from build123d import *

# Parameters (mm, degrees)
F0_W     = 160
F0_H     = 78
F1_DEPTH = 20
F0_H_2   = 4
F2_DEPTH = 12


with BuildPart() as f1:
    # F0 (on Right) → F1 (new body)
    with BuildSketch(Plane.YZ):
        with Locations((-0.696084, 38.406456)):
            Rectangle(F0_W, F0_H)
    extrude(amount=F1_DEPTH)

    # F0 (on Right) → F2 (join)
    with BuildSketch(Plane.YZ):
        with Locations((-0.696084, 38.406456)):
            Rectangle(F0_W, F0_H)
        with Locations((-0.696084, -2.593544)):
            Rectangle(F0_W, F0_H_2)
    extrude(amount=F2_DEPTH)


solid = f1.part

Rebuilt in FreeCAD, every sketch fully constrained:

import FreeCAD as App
import Part
import Sketcher
Q = App.Units.Quantity

doc = App.newDocument("Part")
body = doc.addObject("PartDesign::Body", "Body")

sketch1 = doc.addObject("Sketcher::SketchObject", "Sketch")
body.addObject(sketch1)
sketch1.AttachmentSupport = (doc.YZ_Plane, [""])
sketch1.MapMode = "FlatFace"
sketch1.addGeometry([
    Part.LineSegment(App.Vector(-80.696084, 77.406456, 0), App.Vector(-80.696084, -0.593544, 0)),
    Part.LineSegment(App.Vector(-80.696084, -0.593544, 0), App.Vector(79.303916, -0.593544, 0)),
    Part.LineSegment(App.Vector(79.303916, -0.593544, 0), App.Vector(79.303916, 77.406456, 0)),
    Part.LineSegment(App.Vector(79.303916, 77.406456, 0), App.Vector(-80.696084, 77.406456, 0)),
], False)
sketch1.addConstraint([
    Sketcher.Constraint("Coincident", 0, 2, 1, 1),
    Sketcher.Constraint("Coincident", 1, 2, 2, 1),
    Sketcher.Constraint("Coincident", 2, 2, 3, 1),
    Sketcher.Constraint("Coincident", 3, 2, 0, 1),
    Sketcher.Constraint("Vertical", 0),
    Sketcher.Constraint("Horizontal", 1),
    Sketcher.Constraint("Vertical", 2),
    Sketcher.Constraint("Horizontal", 3),
    Sketcher.Constraint("DistanceX", 1, 1, 1, 2, Q("160 mm")),
    Sketcher.Constraint("DistanceY", 0, 2, 0, 1, Q("78 mm")),
    Sketcher.Constraint("DistanceX", 0, 2, -1, 1, Q("80.696084 mm")),
    Sketcher.Constraint("DistanceY", 0, 2, -1, 1, Q("0.593544 mm")),
])
pad1 = doc.addObject("PartDesign::Pad", "Pad")
body.addObject(pad1)
pad1.Profile = sketch1
pad1.Length = 20

sketch2 = doc.addObject("Sketcher::SketchObject", "Sketch001")
body.addObject(sketch2)
sketch2.AttachmentSupport = (doc.YZ_Plane, [""])
sketch2.MapMode = "FlatFace"
sketch2.addGeometry([
    Part.LineSegment(App.Vector(-80.696084, 77.406456, 0), App.Vector(-80.696084, -4.593544, 0)),
    Part.LineSegment(App.Vector(-80.696084, -4.593544, 0), App.Vector(79.303916, -4.593544, 0)),
    Part.LineSegment(App.Vector(79.303916, -4.593544, 0), App.Vector(79.303916, 77.406456, 0)),
    Part.LineSegment(App.Vector(79.303916, 77.406456, 0), App.Vector(-80.696084, 77.406456, 0)),
], False)
sketch2.addConstraint([
    Sketcher.Constraint("Coincident", 0, 2, 1, 1),
    Sketcher.Constraint("Coincident", 1, 2, 2, 1),
    Sketcher.Constraint("Coincident", 2, 2, 3, 1),
    Sketcher.Constraint("Coincident", 3, 2, 0, 1),
    Sketcher.Constraint("Vertical", 0),
    Sketcher.Constraint("Horizontal", 1),
    Sketcher.Constraint("Vertical", 2),
    Sketcher.Constraint("Horizontal", 3),
    Sketcher.Constraint("DistanceX", 1, 1, 1, 2, Q("160 mm")),
    Sketcher.Constraint("DistanceY", 0, 2, 0, 1, Q("82 mm")),
    Sketcher.Constraint("DistanceX", 0, 2, -1, 1, Q("80.696084 mm")),
    Sketcher.Constraint("DistanceY", 0, 2, -1, 1, Q("4.593544 mm")),
])
pad2 = doc.addObject("PartDesign::Pad", "Pad001")
body.addObject(pad2)
pad2.Profile = sketch2
pad2.Length = 12

doc.recompute()
